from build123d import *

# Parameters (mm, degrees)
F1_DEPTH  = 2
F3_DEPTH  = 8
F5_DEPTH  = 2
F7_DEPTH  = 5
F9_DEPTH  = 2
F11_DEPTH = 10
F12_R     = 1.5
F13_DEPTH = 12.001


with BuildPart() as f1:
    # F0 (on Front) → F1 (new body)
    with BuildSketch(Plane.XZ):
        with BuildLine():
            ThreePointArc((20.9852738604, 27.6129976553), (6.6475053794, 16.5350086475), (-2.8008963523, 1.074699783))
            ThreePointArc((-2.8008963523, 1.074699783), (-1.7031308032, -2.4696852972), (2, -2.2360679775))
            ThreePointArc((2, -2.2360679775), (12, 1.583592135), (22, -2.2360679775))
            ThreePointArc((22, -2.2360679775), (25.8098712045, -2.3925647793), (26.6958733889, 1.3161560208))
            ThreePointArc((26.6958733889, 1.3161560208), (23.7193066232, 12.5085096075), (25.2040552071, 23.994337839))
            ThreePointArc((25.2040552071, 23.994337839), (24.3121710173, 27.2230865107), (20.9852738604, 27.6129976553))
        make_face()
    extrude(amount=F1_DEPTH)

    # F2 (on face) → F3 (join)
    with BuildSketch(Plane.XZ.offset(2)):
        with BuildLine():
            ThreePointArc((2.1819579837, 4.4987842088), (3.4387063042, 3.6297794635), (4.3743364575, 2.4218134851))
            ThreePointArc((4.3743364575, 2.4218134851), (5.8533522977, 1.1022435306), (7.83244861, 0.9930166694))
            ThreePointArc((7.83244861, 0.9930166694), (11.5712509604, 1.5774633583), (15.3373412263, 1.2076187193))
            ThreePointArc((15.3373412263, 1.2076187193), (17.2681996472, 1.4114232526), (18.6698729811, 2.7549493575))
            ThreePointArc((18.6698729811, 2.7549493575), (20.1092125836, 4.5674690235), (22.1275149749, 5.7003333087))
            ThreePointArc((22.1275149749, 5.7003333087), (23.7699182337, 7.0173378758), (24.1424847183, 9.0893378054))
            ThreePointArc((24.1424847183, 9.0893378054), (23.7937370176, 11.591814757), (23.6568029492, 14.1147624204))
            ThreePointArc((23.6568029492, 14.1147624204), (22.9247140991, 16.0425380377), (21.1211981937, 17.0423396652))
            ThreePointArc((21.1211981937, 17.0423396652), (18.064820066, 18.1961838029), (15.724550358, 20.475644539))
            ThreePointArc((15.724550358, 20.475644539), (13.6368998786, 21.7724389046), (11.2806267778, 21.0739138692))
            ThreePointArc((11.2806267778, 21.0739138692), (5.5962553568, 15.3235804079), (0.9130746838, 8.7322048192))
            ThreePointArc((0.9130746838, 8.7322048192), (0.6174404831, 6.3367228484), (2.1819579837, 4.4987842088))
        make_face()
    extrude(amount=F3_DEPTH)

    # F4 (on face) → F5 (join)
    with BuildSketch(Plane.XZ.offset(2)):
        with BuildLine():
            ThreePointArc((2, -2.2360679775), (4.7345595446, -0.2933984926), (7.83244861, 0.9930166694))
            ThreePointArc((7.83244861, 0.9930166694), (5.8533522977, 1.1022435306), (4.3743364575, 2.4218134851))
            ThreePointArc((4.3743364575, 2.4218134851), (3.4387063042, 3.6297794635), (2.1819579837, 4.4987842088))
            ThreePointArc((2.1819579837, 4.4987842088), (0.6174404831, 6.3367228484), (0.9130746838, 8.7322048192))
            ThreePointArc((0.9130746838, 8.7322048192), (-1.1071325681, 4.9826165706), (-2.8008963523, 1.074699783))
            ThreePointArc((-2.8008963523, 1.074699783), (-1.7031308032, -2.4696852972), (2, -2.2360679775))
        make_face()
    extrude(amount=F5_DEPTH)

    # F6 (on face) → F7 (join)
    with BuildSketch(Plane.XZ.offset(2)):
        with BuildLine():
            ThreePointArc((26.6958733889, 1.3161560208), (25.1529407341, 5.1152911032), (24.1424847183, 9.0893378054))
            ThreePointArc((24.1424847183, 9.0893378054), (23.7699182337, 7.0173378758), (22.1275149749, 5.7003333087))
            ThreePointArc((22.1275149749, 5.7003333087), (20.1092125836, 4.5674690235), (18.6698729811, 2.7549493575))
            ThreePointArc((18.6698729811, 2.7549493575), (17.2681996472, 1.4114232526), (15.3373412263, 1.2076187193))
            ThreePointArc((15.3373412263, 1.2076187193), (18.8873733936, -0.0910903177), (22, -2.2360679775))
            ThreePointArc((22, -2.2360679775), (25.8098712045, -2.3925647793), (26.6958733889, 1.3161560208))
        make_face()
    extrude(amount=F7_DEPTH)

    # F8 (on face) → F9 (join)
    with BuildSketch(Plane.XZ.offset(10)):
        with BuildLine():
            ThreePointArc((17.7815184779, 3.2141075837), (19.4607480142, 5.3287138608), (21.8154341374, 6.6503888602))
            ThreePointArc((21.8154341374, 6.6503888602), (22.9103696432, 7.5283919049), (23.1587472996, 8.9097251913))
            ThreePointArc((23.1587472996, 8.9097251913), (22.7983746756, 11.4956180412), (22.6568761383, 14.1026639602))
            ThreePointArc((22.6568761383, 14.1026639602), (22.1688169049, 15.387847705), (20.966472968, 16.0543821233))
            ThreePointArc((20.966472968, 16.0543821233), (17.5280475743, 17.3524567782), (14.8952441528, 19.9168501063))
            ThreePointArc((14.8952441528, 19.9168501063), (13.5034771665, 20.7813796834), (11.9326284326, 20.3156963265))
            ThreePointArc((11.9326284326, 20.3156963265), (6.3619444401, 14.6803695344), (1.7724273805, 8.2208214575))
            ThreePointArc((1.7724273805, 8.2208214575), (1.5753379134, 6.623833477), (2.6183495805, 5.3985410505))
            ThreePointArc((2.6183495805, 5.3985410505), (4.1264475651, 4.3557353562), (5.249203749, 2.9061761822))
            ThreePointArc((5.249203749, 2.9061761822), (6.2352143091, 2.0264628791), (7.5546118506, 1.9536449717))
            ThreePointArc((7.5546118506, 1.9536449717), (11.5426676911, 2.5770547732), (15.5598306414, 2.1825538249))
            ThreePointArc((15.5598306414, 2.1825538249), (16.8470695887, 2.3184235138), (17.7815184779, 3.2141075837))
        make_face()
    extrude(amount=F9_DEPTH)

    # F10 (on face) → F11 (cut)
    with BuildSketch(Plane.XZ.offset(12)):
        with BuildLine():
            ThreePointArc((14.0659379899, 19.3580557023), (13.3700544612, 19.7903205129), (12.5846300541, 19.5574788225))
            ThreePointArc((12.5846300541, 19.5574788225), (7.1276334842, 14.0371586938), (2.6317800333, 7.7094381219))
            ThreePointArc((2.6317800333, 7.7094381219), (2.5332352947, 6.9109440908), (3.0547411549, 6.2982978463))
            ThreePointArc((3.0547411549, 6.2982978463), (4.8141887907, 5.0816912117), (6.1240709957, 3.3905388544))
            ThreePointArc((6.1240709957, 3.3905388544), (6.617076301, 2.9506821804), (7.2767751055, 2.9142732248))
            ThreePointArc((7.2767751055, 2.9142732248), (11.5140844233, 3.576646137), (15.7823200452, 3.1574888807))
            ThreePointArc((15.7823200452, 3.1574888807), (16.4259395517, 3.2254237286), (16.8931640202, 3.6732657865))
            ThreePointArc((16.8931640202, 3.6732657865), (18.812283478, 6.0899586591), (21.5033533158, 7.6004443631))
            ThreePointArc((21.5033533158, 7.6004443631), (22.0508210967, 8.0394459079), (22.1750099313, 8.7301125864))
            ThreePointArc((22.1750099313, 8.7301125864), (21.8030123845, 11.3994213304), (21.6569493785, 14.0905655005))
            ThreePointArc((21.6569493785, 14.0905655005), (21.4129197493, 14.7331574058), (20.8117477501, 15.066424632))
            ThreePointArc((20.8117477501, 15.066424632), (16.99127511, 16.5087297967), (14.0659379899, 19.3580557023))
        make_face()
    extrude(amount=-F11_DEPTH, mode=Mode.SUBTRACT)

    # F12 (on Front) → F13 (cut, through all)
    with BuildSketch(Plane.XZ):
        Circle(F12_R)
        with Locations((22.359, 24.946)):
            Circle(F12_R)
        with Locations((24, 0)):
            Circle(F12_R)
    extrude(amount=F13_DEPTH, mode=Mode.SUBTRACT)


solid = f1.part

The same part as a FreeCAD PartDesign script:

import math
import FreeCAD as App
import Part
import Sketcher
from FreeCAD import Vector
Q = App.Units.Quantity

doc = App.newDocument("Part")
body = doc.addObject("PartDesign::Body", "Body")

# Sketch on XZ plane
sketch1 = body.newObject("Sketcher::SketchObject", "Sketch")
sketch1.AttachmentSupport = (doc.getObject("XZ_Plane"), [""])
sketch1.MapMode = "FlatFace"
sketch1.addGeometry([
    Part.ArcOfCircle(Part.Circle(Vector(43.9, -16.8, 0), Vector(0, 0, 1), 50), math.radians(117), math.radians(159)),  # 0
    Part.ArcOfCircle(Part.Circle(Vector(0, 0, 0), Vector(0, 0, 1), 3), math.radians(159), math.radians(312)),  # 1
    Part.ArcOfCircle(Part.Circle(Vector(12, -13.4, 0), Vector(0, 0, 1), 15), math.radians(48), math.radians(132)),  # 2
    Part.ArcOfCircle(Part.Circle(Vector(24, 0, 0), Vector(0, 0, 1), 3), math.radians(-132), math.radians(26)),  # 3
    Part.ArcOfCircle(Part.Circle(Vector(53.7, 14.5, 0), Vector(0, 0, 1), 30), math.radians(162), math.radians(206)),  # 4
    Part.ArcOfCircle(Part.Circle(Vector(22.4, 24.9, 0), Vector(0, 0, 1), 3), math.radians(-18), math.radians(117)),  # 5
], False)
sketch1.addConstraint([
    Sketcher.Constraint("Tangent", 0, 2, 1, 1),
    Sketcher.Constraint("Tangent", 1, 2, 2, 2),
    Sketcher.Constraint("Tangent", 2, 1, 3, 1),
    Sketcher.Constraint("Tangent", 3, 2, 4, 2),
    Sketcher.Constraint("Tangent", 4, 1, 5, 1),
    Sketcher.Constraint("Tangent", 5, 2, 0, 1),
    Sketcher.Constraint("Coincident", 1, 3, -1, 1),
    Sketcher.Constraint("Equal", 1, 3),
    Sketcher.Constraint("Equal", 3, 5),
    Sketcher.Constraint("PointOnObject", 3, 3, -1),
    Sketcher.Constraint("Radius", 0, Q("50 mm")),
    Sketcher.Constraint("Radius", 1, Q("3 mm")),
    Sketcher.Constraint("Radius", 2, Q("15 mm")),
    Sketcher.Constraint("Radius", 4, Q("30 mm")),
    Sketcher.Constraint("DistanceX", -1, 1, 2, 3, Q("12 mm")),
    Sketcher.Constraint("DistanceX", -1, 1, 5, 3, Q("22.359 mm")),
    Sketcher.Constraint("DistanceY", -1, 1, 5, 3, Q("24.946 mm")),
])
pad1 = body.newObject("PartDesign::Pad", "Pad")
pad1.Profile = sketch1
pad1.Length = 2

# Sketch on XZ plane
sketch2 = body.newObject("Sketcher::SketchObject", "Sketch001")
sketch2.AttachmentSupport = (doc.getObject("XZ_Plane"), [""])
sketch2.MapMode = "FlatFace"
sketch2.AttachmentOffset = App.Placement(Vector(0, 0, 2), App.Rotation())
sketch2.addGeometry([
    Part.ArcOfCircle(Part.Circle(Vector(0, 0, 0), Vector(0, 0, 1), 5), math.radians(29), math.radians(64)),  # 0
    Part.ArcOfCircle(Part.Circle(Vector(7, 3.9, 0), Vector(0, 0, 1), 3), math.radians(-151), math.radians(-74)),  # 1
    Part.ArcOfCircle(Part.Circle(Vector(12, -13.4, 0), Vector(0, 0, 1), 15), math.radians(77), math.radians(106)),  # 2
    Part.ArcOfCircle(Part.Circle(Vector(16, 4.1, 0), Vector(0, 0, 1), 3), math.radians(-103), math.radians(-27)),  # 3
    Part.ArcOfCircle(Part.Circle(Vector(24, 0, 0), Vector(0, 0, 1), 6), math.radians(108), math.radians(153)),  # 4
    Part.ArcOfCircle(Part.Circle(Vector(21.2, 8.6, 0), Vector(0, 0, 1), 3), math.radians(-72), math.radians(10)),  # 5
    Part.ArcOfCircle(Part.Circle(Vector(53.7, 14.5, 0), Vector(0, 0, 1), 30), math.radians(-179.31), math.radians(-169.65)),  # 6
    Part.ArcOfCircle(Part.Circle(Vector(20.7, 14.1, 0), Vector(0, 0, 1), 3), math.radians(1), math.radians(81)),  # 7
    Part.ArcOfCircle(Part.Circle(Vector(22.4, 24.9, 0), Vector(0, 0, 1), 8), math.radians(-146), math.radians(-99)),  # 8
    Part.ArcOfCircle(Part.Circle(Vector(13.2, 18.8, 0), Vector(0, 0, 1), 3), math.radians(34), math.radians(131)),  # 9
    Part.ArcOfCircle(Part.Circle(Vector(43.9, -16.8, 0), Vector(0, 0, 1), 50), math.radians(130.69), math.radians(149.24)),  # 10
    Part.ArcOfCircle(Part.Circle(Vector(3.5, 7.2, 0), Vector(0, 0, 1), 3), math.radians(149), math.radians(244)),  # 11
], False)
sketch2.addConstraint([
    Sketcher.Constraint("Tangent", 0, 1, 1, 1),
    Sketcher.Constraint("Tangent", 1, 2, 2, 2),
    Sketcher.Constraint("Tangent", 2, 1, 3, 1),
    Sketcher.Constraint("Tangent", 3, 2, 4, 2),
    Sketcher.Constraint("Tangent", 4, 1, 5, 1),
    Sketcher.Constraint("Tangent", 5, 2, 6, 2),
    Sketcher.Constraint("Tangent", 6, 1, 7, 1),
    Sketcher.Constraint("Tangent", 7, 2, 8, 2),
    Sketcher.Constraint("Tangent", 8, 1, 9, 1),
    Sketcher.Constraint("Tangent", 9, 2, 10, 1),
    Sketcher.Constraint("Tangent", 10, 2, 11, 1),
    Sketcher.Constraint("Tangent", 11, 2, 0, 2),
    Sketcher.Constraint("Coincident", 0, 3, -1, 1),
    Sketcher.Constraint("Equal", 1, 3),
    Sketcher.Constraint("Equal", 3, 5),
    Sketcher.Constraint("Equal", 5, 7),
    Sketcher.Constraint("Equal", 7, 9),
    Sketcher.Constraint("Equal", 9, 11),
    Sketcher.Constraint("PointOnObject", 4, 3, -1),
    Sketcher.Constraint("Radius", 0, Q("5 mm")),
    Sketcher.Constraint("Radius", 1, Q("3 mm")),
    Sketcher.Constraint("Radius", 2, Q("15 mm")),
    Sketcher.Constraint("Radius", 4, Q("6 mm")),
    Sketcher.Constraint("Radius", 6, Q("30 mm")),
    Sketcher.Constraint("Radius", 8, Q("8 mm")),
    Sketcher.Constraint("Radius", 10, Q("50 mm")),
    Sketcher.Constraint("DistanceX", -1, 1, 2, 3, Q("12 mm")),
    Sketcher.Constraint("DistanceX", -1, 1, 4, 3, Q("24 mm")),
    Sketcher.Constraint("DistanceX", -1, 1, 8, 3, Q("22.359 mm")),
    Sketcher.Constraint("DistanceY", -1, 1, 8, 3, Q("24.946 mm")),
    Sketcher.Constraint("DistanceY", -1, 1, 1, 3, Q("3.874902 mm")),
    Sketcher.Constraint("DistanceY", -1, 1, 5, 3, Q("8.5505 mm")),
    Sketcher.Constraint("DistanceX", -1, 1, 7, 2, Q("21.121198 mm")),
    Sketcher.Constraint("DistanceX", 3, 3, 10, 3, Q("27.8759 mm")),
    Sketcher.Constraint("DistanceX", 11, 3, 9, 3, Q("9.745499 mm")),
])
pad2 = body.newObject("PartDesign::Pad", "Pad001")
pad2.Profile = sketch2
pad2.Length = 8

# Sketch on XZ plane
sketch3 = body.newObject("Sketcher::SketchObject", "Sketch002")
sketch3.AttachmentSupport = (doc.getObject("XZ_Plane"), [""])
sketch3.MapMode = "FlatFace"
sketch3.AttachmentOffset = App.Placement(Vector(0, 0, 2), App.Rotation())
sketch3.addGeometry([
    Part.ArcOfCircle(Part.Circle(Vector(12, -13.4, 0), Vector(0, 0, 1), 15), math.radians(106), math.radians(132)),  # 0
    Part.ArcOfCircle(Part.Circle(Vector(7, 3.9, 0), Vector(0, 0, 1), 3), math.radians(-151), math.radians(-74)),  # 1
    Part.ArcOfCircle(Part.Circle(Vector(0, 0, 0), Vector(0, 0, 1), 5), math.radians(29), math.radians(64)),  # 2
    Part.ArcOfCircle(Part.Circle(Vector(3.5, 7.2, 0), Vector(0, 0, 1), 3), math.radians(149), math.radians(244)),  # 3
    Part.ArcOfCircle(Part.Circle(Vector(43.9, -16.8, 0), Vector(0, 0, 1), 50), math.radians(149.24), math.radians(159.01)),  # 4
    Part.ArcOfCircle(Part.Circle(Vector(0, 0, 0), Vector(0, 0, 1), 3), math.radians(159), math.radians(312)),  # 5
], False)
sketch3.addConstraint([
    Sketcher.Constraint("Tangent", 0, 1, 1, 2),
    Sketcher.Constraint("Tangent", 1, 1, 2, 1),
    Sketcher.Constraint("Tangent", 2, 2, 3, 2),
    Sketcher.Constraint("Tangent", 3, 1, 4, 1),
    Sketcher.Constraint("Tangent", 4, 2, 5, 1),
    Sketcher.Constraint("Tangent", 5, 2, 0, 2),
    Sketcher.Constraint("Coincident", 2, 3, -1, 1),
    Sketcher.Constraint("Coincident", 5, 3, -1, 1),
    Sketcher.Constraint("Equal", 1, 3),
    Sketcher.Constraint("Equal", 3, 5),
    Sketcher.Constraint("Radius", 0, Q("15 mm")),
    Sketcher.Constraint("Radius", 1, Q("3 mm")),
    Sketcher.Constraint("Radius", 2, Q("5 mm")),
    Sketcher.Constraint("Radius", 4, Q("50 mm")),
    Sketcher.Constraint("DistanceX", -1, 1, 0, 3, Q("12 mm")),
    Sketcher.Constraint("DistanceX", -1, 1, 4, 3, Q("43.88071 mm")),
])
pad3 = body.newObject("PartDesign::Pad", "Pad002")
pad3.Profile = sketch3
pad3.Length = 2

# Sketch on XZ plane
sketch4 = body.newObject("Sketcher::SketchObject", "Sketch003")
sketch4.AttachmentSupport = (doc.getObject("XZ_Plane"), [""])
sketch4.MapMode = "FlatFace"
sketch4.AttachmentOffset = App.Placement(Vector(0, 0, 2), App.Rotation())
sketch4.addGeometry([
    Part.ArcOfCircle(Part.Circle(Vector(53.7, 14.5, 0), Vector(0, 0, 1), 30), math.radians(-169.65), math.radians(-153.98)),  # 0
    Part.ArcOfCircle(Part.Circle(Vector(21.2, 8.6, 0), Vector(0, 0, 1), 3), math.radians(-72), math.radians(10)),  # 1
    Part.ArcOfCircle(Part.Circle(Vector(24, 0, 0), Vector(0, 0, 1), 6), math.radians(108), math.radians(153)),  # 2
    Part.ArcOfCircle(Part.Circle(Vector(16, 4.1, 0), Vector(0, 0, 1), 3), math.radians(-103), math.radians(-27)),  # 3
    Part.ArcOfCircle(Part.Circle(Vector(12, -13.4, 0), Vector(0, 0, 1), 15), math.radians(48), math.radians(77)),  # 4
    Part.ArcOfCircle(Part.Circle(Vector(24, 0, 0), Vector(0, 0, 1), 3), math.radians(-132), math.radians(26)),  # 5
], False)
sketch4.addConstraint([
    Sketcher.Constraint("Tangent", 0, 1, 1, 2),
    Sketcher.Constraint("Tangent", 1, 1, 2, 1),
    Sketcher.Constraint("Tangent", 2, 2, 3, 2),
    Sketcher.Constraint("Tangent", 3, 1, 4, 2),
    Sketcher.Constraint("Tangent", 4, 1, 5, 1),
    Sketcher.Constraint("Tangent", 5, 2, 0, 2),
    Sketcher.Constraint("Coincident", 5, 3, 2, 3),
    Sketcher.Constraint("Equal", 1, 3),
    Sketcher.Constraint("Equal", 3, 5),
    Sketcher.Constraint("PointOnObject", 2, 3, -1),
    Sketcher.Constraint("Radius", 0, Q("30 mm")),
    Sketcher.Constraint("Radius", 1, Q("3 mm")),
    Sketcher.Constraint("Radius", 2, Q("6 mm")),
    Sketcher.Constraint("Radius", 4, Q("15 mm")),
    Sketcher.Constraint("DistanceX", -1, 1, 2, 3, Q("24 mm")),
    Sketcher.Constraint("DistanceX", -1, 1, 4, 3, Q("12 mm")),
    Sketcher.Constraint("DistanceX", 2, 2, 5, 2, Q("8.026 mm")),
])
pad4 = body.newObject("PartDesign::Pad", "Pad003")
pad4.Profile = sketch4
pad4.Length = 5

# Sketch on XZ plane
sketch5 = body.newObject("Sketcher::SketchObject", "Sketch004")
sketch5.AttachmentSupport = (doc.getObject("XZ_Plane"), [""])
sketch5.MapMode = "FlatFace"
sketch5.AttachmentOffset = App.Placement(Vector(0, 0, 10), App.Rotation())
sketch5.addGeometry([
    Part.ArcOfCircle(Part.Circle(Vector(24, 0, 0), Vector(0, 0, 1), 7), math.radians(108), math.radians(153)),  # 0
    Part.ArcOfCircle(Part.Circle(Vector(21.2, 8.6, 0), Vector(0, 0, 1), 2), math.radians(-72), math.radians(10)),  # 1
    Part.ArcOfCircle(Part.Circle(Vector(53.7, 14.5, 0), Vector(0, 0, 1), 31), math.radians(-179.31), math.radians(-169.65)),  # 2
    Part.ArcOfCircle(Part.Circle(Vector(20.7, 14.1, 0), Vector(0, 0, 1), 2), math.radians(1), math.radians(81)),  # 3
    Part.ArcOfCircle(Part.Circle(Vector(22.4, 24.9, 0), Vector(0, 0, 1), 9), math.radians(-146), math.radians(-99)),  # 4
    Part.ArcOfCircle(Part.Circle(Vector(13.2, 18.8, 0), Vector(0, 0, 1), 2), math.radians(34), math.radians(131)),  # 5
    Part.ArcOfCircle(Part.Circle(Vector(43.9, -16.8, 0), Vector(0, 0, 1), 49), math.radians(130.69), math.radians(149.24)),  # 6
    Part.ArcOfCircle(Part.Circle(Vector(3.5, 7.2, 0), Vector(0, 0, 1), 2), math.radians(149), math.radians(244)),  # 7
    Part.ArcOfCircle(Part.Circle(Vector(0, 0, 0), Vector(0, 0, 1), 6), math.radians(29), math.radians(64)),  # 8
    Part.ArcOfCircle(Part.Circle(Vector(7, 3.9, 0), Vector(0, 0, 1), 2), math.radians(-151), math.radians(-74)),  # 9
    Part.ArcOfCircle(Part.Circle(Vector(12, -13.4, 0), Vector(0, 0, 1), 16), math.radians(77), math.radians(106)),  # 10
    Part.ArcOfCircle(Part.Circle(Vector(16, 4.1, 0), Vector(0, 0, 1), 2), math.radians(-103), math.radians(-27)),  # 11
], False)
sketch5.addConstraint([
    Sketcher.Constraint("Tangent", 0, 1, 1, 1),
    Sketcher.Constraint("Tangent", 1, 2, 2, 2),
    Sketcher.Constraint("Tangent", 2, 1, 3, 1),
    Sketcher.Constraint("Tangent", 3, 2, 4, 2),
    Sketcher.Constraint("Tangent", 4, 1, 5, 1),
    Sketcher.Constraint("Tangent", 5, 2, 6, 1),
    Sketcher.Constraint("Tangent", 6, 2, 7, 1),
    Sketcher.Constraint("Tangent", 7, 2, 8, 2),
    Sketcher.Constraint("Tangent", 8, 1, 9, 1),
    Sketcher.Constraint("Tangent", 9, 2, 10, 2),
    Sketcher.Constraint("Tangent", 10, 1, 11, 1),
    Sketcher.Constraint("Tangent", 11, 2, 0, 2),
    Sketcher.Constraint("Coincident", 8, 3, -1, 1),
    Sketcher.Constraint("Equal", 1, 3),
    Sketcher.Constraint("Equal", 3, 5),
    Sketcher.Constraint("Equal", 5, 7),
    Sketcher.Constraint("Equal", 7, 9),
    Sketcher.Constraint("Equal", 9, 11),
    Sketcher.Constraint("PointOnObject", 0, 3, -1),
    Sketcher.Constraint("Radius", 0, Q("7 mm")),
    Sketcher.Constraint("Radius", 1, Q("2 mm")),
    Sketcher.Constraint("Radius", 2, Q("31 mm")),
    Sketcher.Constraint("Radius", 4, Q("9 mm")),
    Sketcher.Constraint("Radius", 6, Q("49 mm")),
    Sketcher.Constraint("Radius", 8, Q("6 mm")),
    Sketcher.Constraint("Radius", 10, Q("16 mm")),
    Sketcher.Constraint("DistanceX", -1, 1, 0, 3, Q("24 mm")),
    Sketcher.Constraint("DistanceX", -1, 1, 10, 3, Q("12 mm")),
    Sketcher.Constraint("DistanceX", -1, 1, 4, 3, Q("22.359 mm")),
    Sketcher.Constraint("DistanceY", -1, 1, 4, 3, Q("24.946 mm")),
    Sketcher.Constraint("DistanceY", -1, 1, 1, 3, Q("8.5505 mm")),
    Sketcher.Constraint("DistanceY", -1, 1, 9, 3, Q("3.874902 mm")),
    Sketcher.Constraint("DistanceX", 7, 3, 5, 3, Q("9.745499 mm")),
    Sketcher.Constraint("DistanceY", 11, 3, 1, 2, Q("4.777301 mm")),
    Sketcher.Constraint("DistanceX", -1, 1, 5, 3, Q("13.236632 mm")),
])
pad5 = body.newObject("PartDesign::Pad", "Pad004")
pad5.Profile = sketch5
pad5.Length = 2

# Sketch on XZ plane
sketch6 = body.newObject("Sketcher::SketchObject", "Sketch005")
sketch6.AttachmentSupport = (doc.getObject("XZ_Plane"), [""])
sketch6.MapMode = "FlatFace"
sketch6.AttachmentOffset = App.Placement(Vector(0, 0, 12), App.Rotation())
sketch6.addGeometry([
    Part.ArcOfCircle(Part.Circle(Vector(13.236632, 18.799261, 0), Vector(0, 0, 1), 1), math.radians(33.972466), math.radians(130.692689)),  # 0
    Part.ArcOfCircle(Part.Circle(Vector(43.88071, -16.836963, 0), Vector(0, 0, 1), 48), math.radians(130.692689), math.radians(149.243981)),  # 1
    Part.ArcOfCircle(Part.Circle(Vector(3.491133, 7.198055, 0), Vector(0, 0, 1), 1), math.radians(149.243981), math.radians(244.126124)),  # 2
    Part.ArcOfCircle(Part.Circle(Vector(0, 0, 0), Vector(0, 0, 1), 7), math.radians(28.970726), math.radians(64.126124)),  # 3
    Part.ArcOfCircle(Part.Circle(Vector(6.998938, 3.874902, 0), Vector(0, 0, 1), 1), math.radians(-151.029273), math.radians(-73.868862)),  # 4
    Part.ArcOfCircle(Part.Circle(Vector(12, -13.416408, 0), Vector(0, 0, 1), 17), math.radians(77.144709), math.radians(106.131138)),  # 5
    Part.ArcOfCircle(Part.Circle(Vector(16.004809, 4.132424, 0), Vector(0, 0, 1), 1), math.radians(-102.855291), math.radians(-27.332803)),  # 6
    Part.ArcOfCircle(Part.Circle(Vector(24, 0, 0), Vector(0, 0, 1), 8), math.radians(108.184676), math.radians(152.667197)),  # 7
    Part.ArcOfCircle(Part.Circle(Vector(21.191272, 8.5505, 0), Vector(0, 0, 1), 1), math.radians(-71.815324), math.radians(10.347196)),  # 8
    Part.ArcOfCircle(Part.Circle(Vector(53.654607, 14.477716, 0), Vector(0, 0, 1), 32), math.radians(-179.306792), math.radians(-169.652804)),  # 9
    Part.ArcOfCircle(Part.Circle(Vector(20.657023, 14.078467, 0), Vector(0, 0, 1), 1), math.radians(0.693208), math.radians(81.099139)),  # 10
    Part.ArcOfCircle(Part.Circle(Vector(22.359, 24.946, 0), Vector(0, 0, 1), 10), math.radians(-146.027534), math.radians(-98.900861)),  # 11
], False)
sketch6.addConstraint([
    Sketcher.Constraint("Coincident", 0, 2, 1, 1),
    Sketcher.Constraint("Coincident", 1, 2, 2, 1),
    Sketcher.Constraint("Coincident", 2, 2, 3, 2),
    Sketcher.Constraint("Coincident", 3, 1, 4, 1),
    Sketcher.Constraint("Coincident", 4, 2, 5, 2),
    Sketcher.Constraint("Coincident", 5, 1, 6, 1),
    Sketcher.Constraint("Coincident", 6, 2, 7, 2),
    Sketcher.Constraint("Coincident", 7, 1, 8, 1),
    Sketcher.Constraint("Coincident", 8, 2, 9, 2),
    Sketcher.Constraint("Coincident", 9, 1, 10, 1),
    Sketcher.Constraint("Coincident", 10, 2, 11, 2),
    Sketcher.Constraint("Coincident", 11, 1, 0, 1),
    Sketcher.Constraint("Coincident", 3, 3, -1, 1),
    Sketcher.Constraint("PointOnObject", 7, 3, -1),
    Sketcher.Constraint("Radius", 0, Q("1 mm")),
    Sketcher.Constraint("Radius", 1, Q("48 mm")),
    Sketcher.Constraint("Radius", 2, Q("1 mm")),
    Sketcher.Constraint("Radius", 3, Q("7 mm")),
    Sketcher.Constraint("Radius", 4, Q("1 mm")),
    Sketcher.Constraint("Radius", 5, Q("17 mm")),
    Sketcher.Constraint("Radius", 6, Q("1 mm")),
    Sketcher.Constraint("Radius", 7, Q("8 mm")),
    Sketcher.Constraint("Radius", 8, Q("1 mm")),
    Sketcher.Constraint("Radius", 9, Q("32 mm")),
    Sketcher.Constraint("Radius", 10, Q("1 mm")),
    Sketcher.Constraint("Radius", 11, Q("10 mm")),
    Sketcher.Constraint("DistanceX", -1, 1, 5, 3, Q("12 mm")),
    Sketcher.Constraint("DistanceX", -1, 1, 7, 3, Q("24 mm")),
    Sketcher.Constraint("DistanceX", -1, 1, 11, 3, Q("22.359 mm")),
    Sketcher.Constraint("DistanceY", -1, 1, 11, 3, Q("24.946 mm")),
    Sketcher.Constraint("DistanceX", 0, 2, 0, 3, Q("0.652002 mm")),
    Sketcher.Constraint("DistanceY", -1, 1, 4, 3, Q("3.874902 mm")),
    Sketcher.Constraint("DistanceY", -1, 1, 8, 3, Q("8.5505 mm")),
    Sketcher.Constraint("DistanceX", 2, 3, 0, 3, Q("9.745499 mm")),
    Sketcher.Constraint("DistanceY", 3, 1, 1, 2, Q("4.318899 mm")),
    Sketcher.Constraint("DistanceX", 6, 3, 8, 2, Q("6.1702 mm")),
    Sketcher.Constraint("DistanceY", 10, 3, 9, 1, Q("0.012098 mm")),
    Sketcher.Constraint("DistanceX", 10, 2, 9, 1, Q("0.845202 mm")),
    Sketcher.Constraint("DistanceX", -1, 1, 0, 3, Q("13.236632 mm")),
    Sketcher.Constraint("DistanceX", -1, 1, 1, 2, Q("2.63178 mm")),
    Sketcher.Constraint("DistanceX", -1, 1, 2, 2, Q("3.054741 mm")),
    Sketcher.Constraint("DistanceX", -1, 1, 5, 1, Q("15.78232 mm")),
    Sketcher.Constraint("DistanceX", -1, 1, 9, 1, Q("21.656949 mm")),
    Sketcher.Constraint("DistanceY", 4, 2, 4, 3, Q("0.960628 mm")),
    Sketcher.Constraint("DistanceY", 6, 2, 6, 3, Q("0.459158 mm")),
    Sketcher.Constraint("DistanceX", 8, 3, 7, 1, Q("0.312081 mm")),
    Sketcher.Constraint("DistanceX", 11, 1, 10, 2, Q("6.74581 mm")),
])
pocket1 = body.newObject("PartDesign::Pocket", "Pocket")
pocket1.Profile = sketch6
pocket1.Length = 10

# Sketch on XZ plane
sketch7 = body.newObject("Sketcher::SketchObject", "Sketch006")
sketch7.AttachmentSupport = (doc.getObject("XZ_Plane"), [""])
sketch7.MapMode = "FlatFace"
sketch7.addGeometry([
    Part.Circle(Vector(0, 0, 0), Vector(0, 0, 1), 1.5),
    Part.Circle(Vector(22.4, 24.9, 0), Vector(0, 0, 1), 1.5),
    Part.Circle(Vector(24, 0, 0), Vector(0, 0, 1), 1.5),
], False)
sketch7.addConstraint([
    Sketcher.Constraint("Coincident", 0, 3, -1, 1),
    Sketcher.Constraint("Equal", 0, 1),
    Sketcher.Constraint("Equal", 1, 2),
    Sketcher.Constraint("PointOnObject", 2, 3, -1),
    Sketcher.Constraint("Diameter", 0, Q("3 mm")),
    Sketcher.Constraint("DistanceX", -1, 1, 2, 3, Q("24 mm")),
    Sketcher.Constraint("DistanceX", -1, 1, 1, 3, Q("22.359 mm")),
    Sketcher.Constraint("DistanceY", -1, 1, 1, 3, Q("24.946 mm")),
])
pocket2 = body.newObject("PartDesign::Pocket", "Pocket001")
pocket2.Profile = sketch7
pocket2.Type = "ThroughAll"
pocket2.Reversed = True

doc.recompute()
